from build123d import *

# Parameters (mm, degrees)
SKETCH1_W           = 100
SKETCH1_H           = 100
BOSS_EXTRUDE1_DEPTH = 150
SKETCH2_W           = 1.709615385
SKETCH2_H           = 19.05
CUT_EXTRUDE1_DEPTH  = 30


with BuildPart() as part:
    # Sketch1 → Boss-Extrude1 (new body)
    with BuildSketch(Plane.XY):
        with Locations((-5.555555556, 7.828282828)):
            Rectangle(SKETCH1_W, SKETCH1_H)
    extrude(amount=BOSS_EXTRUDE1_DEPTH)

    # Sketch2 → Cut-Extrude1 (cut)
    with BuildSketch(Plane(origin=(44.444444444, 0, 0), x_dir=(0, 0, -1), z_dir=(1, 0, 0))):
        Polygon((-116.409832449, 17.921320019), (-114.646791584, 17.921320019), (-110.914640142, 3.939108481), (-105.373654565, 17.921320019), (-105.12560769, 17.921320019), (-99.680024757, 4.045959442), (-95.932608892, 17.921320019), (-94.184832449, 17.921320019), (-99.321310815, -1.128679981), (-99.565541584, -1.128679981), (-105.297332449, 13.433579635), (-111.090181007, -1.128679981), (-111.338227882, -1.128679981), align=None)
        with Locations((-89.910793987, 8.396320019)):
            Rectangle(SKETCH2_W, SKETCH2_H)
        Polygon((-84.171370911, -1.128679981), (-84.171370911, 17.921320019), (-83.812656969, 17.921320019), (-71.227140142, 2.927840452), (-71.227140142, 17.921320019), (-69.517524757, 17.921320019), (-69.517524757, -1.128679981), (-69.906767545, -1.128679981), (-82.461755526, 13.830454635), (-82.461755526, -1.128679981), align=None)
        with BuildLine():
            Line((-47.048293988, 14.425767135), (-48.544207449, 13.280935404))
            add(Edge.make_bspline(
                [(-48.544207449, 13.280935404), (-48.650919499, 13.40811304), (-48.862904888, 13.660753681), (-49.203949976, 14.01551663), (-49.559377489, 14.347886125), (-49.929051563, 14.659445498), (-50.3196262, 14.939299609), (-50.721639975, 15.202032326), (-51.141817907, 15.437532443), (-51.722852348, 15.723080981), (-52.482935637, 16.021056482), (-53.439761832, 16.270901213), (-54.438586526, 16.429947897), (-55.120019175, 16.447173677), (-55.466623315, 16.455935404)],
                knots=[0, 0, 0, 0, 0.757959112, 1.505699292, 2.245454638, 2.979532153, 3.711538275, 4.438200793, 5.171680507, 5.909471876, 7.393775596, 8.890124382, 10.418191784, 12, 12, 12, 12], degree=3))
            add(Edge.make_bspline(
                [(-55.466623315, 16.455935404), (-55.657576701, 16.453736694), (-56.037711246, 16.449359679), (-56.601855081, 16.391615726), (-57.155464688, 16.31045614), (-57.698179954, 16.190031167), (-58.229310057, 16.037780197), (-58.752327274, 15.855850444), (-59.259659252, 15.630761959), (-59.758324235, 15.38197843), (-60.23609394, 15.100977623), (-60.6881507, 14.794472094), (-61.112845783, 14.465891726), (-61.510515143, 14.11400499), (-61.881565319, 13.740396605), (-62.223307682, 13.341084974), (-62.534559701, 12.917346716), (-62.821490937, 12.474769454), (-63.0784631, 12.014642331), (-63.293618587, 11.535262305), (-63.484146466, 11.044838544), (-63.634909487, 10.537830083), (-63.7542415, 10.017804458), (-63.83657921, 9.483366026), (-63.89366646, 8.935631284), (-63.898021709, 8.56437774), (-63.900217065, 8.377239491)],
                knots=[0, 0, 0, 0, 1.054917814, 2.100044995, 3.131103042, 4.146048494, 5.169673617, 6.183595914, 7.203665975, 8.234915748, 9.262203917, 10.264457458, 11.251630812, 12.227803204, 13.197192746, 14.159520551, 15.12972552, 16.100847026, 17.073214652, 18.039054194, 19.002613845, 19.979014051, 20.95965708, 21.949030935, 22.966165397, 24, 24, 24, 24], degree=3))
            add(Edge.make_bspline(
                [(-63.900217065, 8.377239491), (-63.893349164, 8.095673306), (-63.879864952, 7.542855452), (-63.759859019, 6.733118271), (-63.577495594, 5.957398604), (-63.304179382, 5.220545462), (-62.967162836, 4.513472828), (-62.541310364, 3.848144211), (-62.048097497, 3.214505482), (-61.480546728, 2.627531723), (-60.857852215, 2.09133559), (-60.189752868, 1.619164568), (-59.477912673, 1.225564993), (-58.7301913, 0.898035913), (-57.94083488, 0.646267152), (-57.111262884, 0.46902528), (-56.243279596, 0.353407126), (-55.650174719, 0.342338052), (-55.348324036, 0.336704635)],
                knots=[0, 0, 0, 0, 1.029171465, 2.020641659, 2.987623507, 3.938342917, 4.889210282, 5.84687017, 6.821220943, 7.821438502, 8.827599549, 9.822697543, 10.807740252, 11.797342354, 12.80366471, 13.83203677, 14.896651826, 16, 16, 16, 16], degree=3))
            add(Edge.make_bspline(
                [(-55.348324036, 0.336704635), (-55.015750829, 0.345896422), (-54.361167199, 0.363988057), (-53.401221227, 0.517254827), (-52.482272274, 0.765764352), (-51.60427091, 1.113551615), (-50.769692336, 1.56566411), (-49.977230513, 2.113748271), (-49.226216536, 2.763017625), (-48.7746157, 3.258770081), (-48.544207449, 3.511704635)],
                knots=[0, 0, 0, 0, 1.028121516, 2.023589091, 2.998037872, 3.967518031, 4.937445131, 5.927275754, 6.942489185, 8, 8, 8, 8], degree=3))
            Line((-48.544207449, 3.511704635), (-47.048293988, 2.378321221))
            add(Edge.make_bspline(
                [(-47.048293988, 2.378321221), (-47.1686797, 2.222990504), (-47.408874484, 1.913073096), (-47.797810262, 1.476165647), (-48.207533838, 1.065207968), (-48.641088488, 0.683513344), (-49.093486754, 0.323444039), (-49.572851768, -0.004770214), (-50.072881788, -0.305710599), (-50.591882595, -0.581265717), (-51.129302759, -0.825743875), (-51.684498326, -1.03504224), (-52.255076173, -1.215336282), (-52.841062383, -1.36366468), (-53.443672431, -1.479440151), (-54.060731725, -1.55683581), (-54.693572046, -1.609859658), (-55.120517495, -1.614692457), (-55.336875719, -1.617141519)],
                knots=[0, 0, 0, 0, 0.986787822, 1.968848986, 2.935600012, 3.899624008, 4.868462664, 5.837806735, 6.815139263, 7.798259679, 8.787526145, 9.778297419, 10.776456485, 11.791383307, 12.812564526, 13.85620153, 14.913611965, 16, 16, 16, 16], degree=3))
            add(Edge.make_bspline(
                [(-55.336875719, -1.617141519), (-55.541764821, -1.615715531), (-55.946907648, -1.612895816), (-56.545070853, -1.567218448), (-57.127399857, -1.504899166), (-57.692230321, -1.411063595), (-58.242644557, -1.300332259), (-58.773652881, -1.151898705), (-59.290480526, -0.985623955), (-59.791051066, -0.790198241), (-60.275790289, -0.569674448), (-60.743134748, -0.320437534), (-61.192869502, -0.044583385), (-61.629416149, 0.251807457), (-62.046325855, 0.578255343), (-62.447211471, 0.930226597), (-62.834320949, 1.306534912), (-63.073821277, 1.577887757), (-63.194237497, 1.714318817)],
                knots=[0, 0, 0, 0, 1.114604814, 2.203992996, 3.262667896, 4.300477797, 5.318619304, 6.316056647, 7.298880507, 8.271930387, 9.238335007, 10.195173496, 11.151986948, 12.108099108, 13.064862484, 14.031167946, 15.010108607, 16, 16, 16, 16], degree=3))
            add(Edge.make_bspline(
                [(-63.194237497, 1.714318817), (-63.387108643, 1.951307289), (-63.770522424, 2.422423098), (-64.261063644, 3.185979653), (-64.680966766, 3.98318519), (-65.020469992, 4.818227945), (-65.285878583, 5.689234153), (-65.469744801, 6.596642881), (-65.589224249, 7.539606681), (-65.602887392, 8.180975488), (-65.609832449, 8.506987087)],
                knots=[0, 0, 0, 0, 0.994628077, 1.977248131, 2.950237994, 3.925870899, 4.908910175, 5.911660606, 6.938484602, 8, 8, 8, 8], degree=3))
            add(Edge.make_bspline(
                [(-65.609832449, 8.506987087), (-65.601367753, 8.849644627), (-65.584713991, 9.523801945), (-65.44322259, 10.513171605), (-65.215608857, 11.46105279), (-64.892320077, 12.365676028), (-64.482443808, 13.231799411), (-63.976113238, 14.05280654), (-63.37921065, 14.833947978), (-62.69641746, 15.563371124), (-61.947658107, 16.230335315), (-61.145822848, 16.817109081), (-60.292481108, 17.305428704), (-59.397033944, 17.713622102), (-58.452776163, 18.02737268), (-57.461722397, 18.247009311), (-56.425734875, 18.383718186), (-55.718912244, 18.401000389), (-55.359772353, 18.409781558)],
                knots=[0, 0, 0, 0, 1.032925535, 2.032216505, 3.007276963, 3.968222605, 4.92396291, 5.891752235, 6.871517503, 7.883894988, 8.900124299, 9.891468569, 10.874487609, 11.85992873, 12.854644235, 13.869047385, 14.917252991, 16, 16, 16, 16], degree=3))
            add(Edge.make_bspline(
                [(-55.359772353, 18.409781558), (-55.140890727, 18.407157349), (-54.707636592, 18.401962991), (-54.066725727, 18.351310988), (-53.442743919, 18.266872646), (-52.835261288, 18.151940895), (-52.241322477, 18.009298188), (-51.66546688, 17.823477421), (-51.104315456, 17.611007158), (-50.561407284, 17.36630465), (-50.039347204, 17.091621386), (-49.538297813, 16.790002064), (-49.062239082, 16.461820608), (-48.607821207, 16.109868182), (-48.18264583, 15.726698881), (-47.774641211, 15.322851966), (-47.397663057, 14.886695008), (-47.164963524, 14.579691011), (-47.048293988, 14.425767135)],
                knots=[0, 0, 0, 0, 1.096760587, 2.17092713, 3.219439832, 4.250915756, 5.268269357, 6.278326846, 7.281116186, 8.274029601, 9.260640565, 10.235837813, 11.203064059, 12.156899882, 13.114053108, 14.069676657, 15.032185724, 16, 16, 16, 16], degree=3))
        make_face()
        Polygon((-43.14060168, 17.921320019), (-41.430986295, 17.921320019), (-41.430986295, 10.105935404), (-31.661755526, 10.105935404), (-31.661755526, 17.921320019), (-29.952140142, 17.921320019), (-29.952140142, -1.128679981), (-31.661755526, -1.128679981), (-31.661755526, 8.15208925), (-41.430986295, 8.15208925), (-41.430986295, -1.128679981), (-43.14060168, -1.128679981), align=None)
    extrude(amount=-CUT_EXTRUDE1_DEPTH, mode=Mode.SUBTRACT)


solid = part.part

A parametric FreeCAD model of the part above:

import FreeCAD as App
import Part
import Sketcher

doc = App.newDocument("Part")
body = doc.addObject("PartDesign::Body", "Body")

# Sketch on XY plane
sketch1 = doc.addObject("Sketcher::SketchObject", "Sketch")
body.addObject(sketch1)
sketch1.AttachmentSupport = (doc.XY_Plane, [""])
sketch1.MapMode = "FlatFace"
sketch1.addGeometry([
    Part.LineSegment(App.Vector(-56, 58, 0), App.Vector(-56, -42, 0)),
    Part.LineSegment(App.Vector(-56, -42, 0), App.Vector(44, -42, 0)),
    Part.LineSegment(App.Vector(44, -42, 0), App.Vector(44, 58, 0)),
    Part.LineSegment(App.Vector(44, 58, 0), App.Vector(-56, 58, 0)),
], False)
sketch1.addConstraint([
    Sketcher.Constraint("Coincident", 0, 2, 1, 1),
    Sketcher.Constraint("Coincident", 1, 2, 2, 1),
    Sketcher.Constraint("Coincident", 2, 2, 3, 1),
    Sketcher.Constraint("Coincident", 3, 2, 0, 1),
    Sketcher.Constraint("Vertical", 0),
    Sketcher.Constraint("Horizontal", 1),
    Sketcher.Constraint("Vertical", 2),
    Sketcher.Constraint("Horizontal", 3),
    Sketcher.Constraint("Equal", 3, 0),
    Sketcher.Constraint("DistanceX", 1, 1, 1, 2, 100.0),
    Sketcher.Constraint("DistanceX", 0, 2, -1, 1, 55.555556),
    Sketcher.Constraint("DistanceY", 0, 2, -1, 1, 42.171717),
])
pad1 = doc.addObject("PartDesign::Pad", "Pad")
body.addObject(pad1)
pad1.Profile = sketch1
pad1.Length = 150

# Sketch on YZ plane
sketch2 = doc.addObject("Sketcher::SketchObject", "Sketch001")
body.addObject(sketch2)
sketch2.AttachmentSupport = (doc.YZ_Plane, [""])
sketch2.MapMode = "FlatFace"
sketch2.AttachmentOffset = App.Placement(App.Vector(0, 0, 44.444444), App.Rotation())
sketch2.addGeometry([
    Part.LineSegment(App.Vector(17.92132, 114.646792, 0), App.Vector(17.92132, 116.409832, 0)),  # 0
    Part.LineSegment(App.Vector(17.92132, 116.409832, 0), App.Vector(-1.12868, 111.338228, 0)),  # 1
    Part.LineSegment(App.Vector(-1.12868, 111.338228, 0), App.Vector(-1.12868, 111.090181, 0)),  # 2
    Part.LineSegment(App.Vector(-1.12868, 111.090181, 0), App.Vector(13.43358, 105.297332, 0)),  # 3
    Part.LineSegment(App.Vector(13.43358, 105.297332, 0), App.Vector(-1.12868, 99.565542, 0)),  # 4
    Part.LineSegment(App.Vector(-1.12868, 99.565542, 0), App.Vector(-1.12868, 99.321311, 0)),  # 5
    Part.LineSegment(App.Vector(-1.12868, 99.321311, 0), App.Vector(17.92132, 94.184832, 0)),  # 6
    Part.LineSegment(App.Vector(17.92132, 94.184832, 0), App.Vector(17.92132, 95.932609, 0)),  # 7
    Part.LineSegment(App.Vector(17.92132, 95.932609, 0), App.Vector(4.045959, 99.680025, 0)),  # 8
    Part.LineSegment(App.Vector(4.045959, 99.680025, 0), App.Vector(17.92132, 105.125608, 0)),  # 9
    Part.LineSegment(App.Vector(17.92132, 105.125608, 0), App.Vector(17.92132, 105.373655, 0)),  # 10
    Part.LineSegment(App.Vector(17.92132, 105.373655, 0), App.Vector(3.939108, 110.91464, 0)),  # 11
    Part.LineSegment(App.Vector(3.939108, 110.91464, 0), App.Vector(17.92132, 114.646792, 0)),  # 12
    Part.LineSegment(App.Vector(17.92132, 90.765602, 0), App.Vector(-1.12868, 90.765602, 0)),  # 13
    Part.LineSegment(App.Vector(-1.12868, 90.765602, 0), App.Vector(-1.12868, 89.055986, 0)),  # 14
    Part.LineSegment(App.Vector(-1.12868, 89.055986, 0), App.Vector(17.92132, 89.055986, 0)),  # 15
    Part.LineSegment(App.Vector(17.92132, 89.055986, 0), App.Vector(17.92132, 90.765602, 0)),  # 16
    Part.LineSegment(App.Vector(17.92132, 84.171371, 0), App.Vector(-1.12868, 84.171371, 0)),  # 17
    Part.LineSegment(App.Vector(-1.12868, 84.171371, 0), App.Vector(-1.12868, 82.461756, 0)),  # 18
    Part.LineSegment(App.Vector(-1.12868, 82.461756, 0), App.Vector(13.830455, 82.461756, 0)),  # 19
    Part.LineSegment(App.Vector(13.830455, 82.461756, 0), App.Vector(-1.12868, 69.906768, 0)),  # 20
    Part.LineSegment(App.Vector(-1.12868, 69.906768, 0), App.Vector(-1.12868, 69.517525, 0)),  # 21
    Part.LineSegment(App.Vector(-1.12868, 69.517525, 0), App.Vector(17.92132, 69.517525, 0)),  # 22
    Part.LineSegment(App.Vector(17.92132, 69.517525, 0), App.Vector(17.92132, 71.22714, 0)),  # 23
    Part.LineSegment(App.Vector(17.92132, 71.22714, 0), App.Vector(2.92784, 71.22714, 0)),  # 24
    Part.LineSegment(App.Vector(2.92784, 71.22714, 0), App.Vector(17.92132, 83.812657, 0)),  # 25
    Part.LineSegment(App.Vector(17.92132, 83.812657, 0), App.Vector(17.92132, 84.171371, 0)),  # 26
    Part.LineSegment(App.Vector(13.280935, 48.544207, 0), App.Vector(14.425767, 47.048294, 0)),  # 27
    Part.BSplineCurve([App.Vector(18.409782, 55.359772, 0), App.Vector(18.407157, 55.140891, 0), App.Vector(18.401963, 54.707637, 0), App.Vector(18.351311, 54.066726, 0), App.Vector(18.266873, 53.442744, 0), App.Vector(18.151941, 52.835261, 0), App.Vector(18.009298, 52.241322, 0), App.Vector(17.823477, 51.665467, 0), App.Vector(17.611007, 51.104315, 0), App.Vector(17.366305, 50.561407, 0), App.Vector(17.091621, 50.039347, 0), App.Vector(16.790002, 49.538298, 0), App.Vector(16.461821, 49.062239, 0), App.Vector(16.109868, 48.607821, 0), App.Vector(15.726699, 48.182646, 0), App.Vector(15.322852, 47.774641, 0), App.Vector(14.886695, 47.397663, 0), App.Vector(14.579691, 47.164964, 0), App.Vector(14.425767, 47.048294, 0)], [4, 1, 1, 1, 1, 1, 1, 1, 1, 1, 1, 1, 1, 1, 1, 1, 4], [0, 1.096760587, 2.17092713, 3.219439832, 4.250915756, 5.268269357, 6.278326846, 7.281116186, 8.274029601, 9.260640565, 10.235837813, 11.203064059, 12.156899882, 13.114053108, 14.069676657, 15.032185724, 16], False, 3, [1, 1, 1, 1, 1, 1, 1, 1, 1, 1, 1, 1, 1, 1, 1, 1, 1, 1, 1], False),  # 28
    Part.BSplineCurve([App.Vector(8.506987, 65.609832, 0), App.Vector(8.849645, 65.601368, 0), App.Vector(9.523802, 65.584714, 0), App.Vector(10.513172, 65.443223, 0), App.Vector(11.461053, 65.215609, 0), App.Vector(12.365676, 64.89232, 0), App.Vector(13.231799, 64.482444, 0), App.Vector(14.052807, 63.976113, 0), App.Vector(14.833948, 63.379211, 0), App.Vector(15.563371, 62.696417, 0), App.Vector(16.230335, 61.947658, 0), App.Vector(16.817109, 61.145823, 0), App.Vector(17.305429, 60.292481, 0), App.Vector(17.713622, 59.397034, 0), App.Vector(18.027373, 58.452776, 0), App.Vector(18.247009, 57.461722, 0), App.Vector(18.383718, 56.425735, 0), App.Vector(18.401, 55.718912, 0), App.Vector(18.409782, 55.359772, 0)], [4, 1, 1, 1, 1, 1, 1, 1, 1, 1, 1, 1, 1, 1, 1, 1, 4], [0, 1.032925535, 2.032216505, 3.007276963, 3.968222605, 4.92396291, 5.891752235, 6.871517503, 7.883894988, 8.900124299, 9.891468569, 10.874487609, 11.85992873, 12.854644235, 13.869047385, 14.917252991, 16], False, 3, [1, 1, 1, 1, 1, 1, 1, 1, 1, 1, 1, 1, 1, 1, 1, 1, 1, 1, 1], False),  # 29
    Part.BSplineCurve([App.Vector(1.714319, 63.194237, 0), App.Vector(1.951307, 63.387109, 0), App.Vector(2.422423, 63.770522, 0), App.Vector(3.18598, 64.261064, 0), App.Vector(3.983185, 64.680967, 0), App.Vector(4.818228, 65.02047, 0), App.Vector(5.689234, 65.285879, 0), App.Vector(6.596643, 65.469745, 0), App.Vector(7.539607, 65.589224, 0), App.Vector(8.180975, 65.602887, 0), App.Vector(8.506987, 65.609832, 0)], [4, 1, 1, 1, 1, 1, 1, 1, 4], [0, 0.994628077, 1.977248131, 2.950237994, 3.925870899, 4.908910175, 5.911660606, 6.938484602, 8], False, 3, [1, 1, 1, 1, 1, 1, 1, 1, 1, 1, 1], False),  # 30
    Part.BSplineCurve([App.Vector(-1.617142, 55.336876, 0), App.Vector(-1.615716, 55.541765, 0), App.Vector(-1.612896, 55.946908, 0), App.Vector(-1.567218, 56.545071, 0), App.Vector(-1.504899, 57.1274, 0), App.Vector(-1.411064, 57.69223, 0), App.Vector(-1.300332, 58.242645, 0), App.Vector(-1.151899, 58.773653, 0), App.Vector(-0.985624, 59.290481, 0), App.Vector(-0.790198, 59.791051, 0), App.Vector(-0.569674, 60.27579, 0), App.Vector(-0.320438, 60.743135, 0), App.Vector(-0.044583, 61.19287, 0), App.Vector(0.251807, 61.629416, 0), App.Vector(0.578255, 62.046326, 0), App.Vector(0.930227, 62.447211, 0), App.Vector(1.306535, 62.834321, 0), App.Vector(1.577888, 63.073821, 0), App.Vector(1.714319, 63.194237, 0)], [4, 1, 1, 1, 1, 1, 1, 1, 1, 1, 1, 1, 1, 1, 1, 1, 4], [0, 1.114604814, 2.203992996, 3.262667896, 4.300477797, 5.318619304, 6.316056647, 7.298880507, 8.271930387, 9.238335007, 10.195173496, 11.151986948, 12.108099108, 13.064862484, 14.031167946, 15.010108607, 16], False, 3, [1, 1, 1, 1, 1, 1, 1, 1, 1, 1, 1, 1, 1, 1, 1, 1, 1, 1, 1], False),  # 31
    Part.BSplineCurve([App.Vector(2.378321, 47.048294, 0), App.Vector(2.222991, 47.16868, 0), App.Vector(1.913073, 47.408874, 0), App.Vector(1.476166, 47.79781, 0), App.Vector(1.065208, 48.207534, 0), App.Vector(0.683513, 48.641088, 0), App.Vector(0.323444, 49.093487, 0), App.Vector(-0.00477, 49.572852, 0), App.Vector(-0.305711, 50.072882, 0), App.Vector(-0.581266, 50.591883, 0), App.Vector(-0.825744, 51.129303, 0), App.Vector(-1.035042, 51.684498, 0), App.Vector(-1.215336, 52.255076, 0), App.Vector(-1.363665, 52.841062, 0), App.Vector(-1.47944, 53.443672, 0), App.Vector(-1.556836, 54.060732, 0), App.Vector(-1.60986, 54.693572, 0), App.Vector(-1.614692, 55.120517, 0), App.Vector(-1.617142, 55.336876, 0)], [4, 1, 1, 1, 1, 1, 1, 1, 1, 1, 1, 1, 1, 1, 1, 1, 4], [0, 0.986787822, 1.968848986, 2.935600012, 3.899624008, 4.868462664, 5.837806735, 6.815139263, 7.798259679, 8.787526145, 9.778297419, 10.776456485, 11.791383307, 12.812564526, 13.85620153, 14.913611965, 16], False, 3, [1, 1, 1, 1, 1, 1, 1, 1, 1, 1, 1, 1, 1, 1, 1, 1, 1, 1, 1], False),  # 32
    Part.LineSegment(App.Vector(2.378321, 47.048294, 0), App.Vector(3.511705, 48.544207, 0)),  # 33
    Part.BSplineCurve([App.Vector(0.336705, 55.348324, 0), App.Vector(0.345896, 55.015751, 0), App.Vector(0.363988, 54.361167, 0), App.Vector(0.517255, 53.401221, 0), App.Vector(0.765764, 52.482272, 0), App.Vector(1.113552, 51.604271, 0), App.Vector(1.565664, 50.769692, 0), App.Vector(2.113748, 49.977231, 0), App.Vector(2.763018, 49.226217, 0), App.Vector(3.25877, 48.774616, 0), App.Vector(3.511705, 48.544207, 0)], [4, 1, 1, 1, 1, 1, 1, 1, 4], [0, 1.028121516, 2.023589091, 2.998037872, 3.967518031, 4.937445131, 5.927275754, 6.942489185, 8], False, 3, [1, 1, 1, 1, 1, 1, 1, 1, 1, 1, 1], False),  # 34
    Part.BSplineCurve([App.Vector(8.377239, 63.900217, 0), App.Vector(8.095673, 63.893349, 0), App.Vector(7.542855, 63.879865, 0), App.Vector(6.733118, 63.759859, 0), App.Vector(5.957399, 63.577496, 0), App.Vector(5.220545, 63.304179, 0), App.Vector(4.513473, 62.967163, 0), App.Vector(3.848144, 62.54131, 0), App.Vector(3.214505, 62.048097, 0), App.Vector(2.627532, 61.480547, 0), App.Vector(2.091336, 60.857852, 0), App.Vector(1.619165, 60.189753, 0), App.Vector(1.225565, 59.477913, 0), App.Vector(0.898036, 58.730191, 0), App.Vector(0.646267, 57.940835, 0), App.Vector(0.469025, 57.111263, 0), App.Vector(0.353407, 56.24328, 0), App.Vector(0.342338, 55.650175, 0), App.Vector(0.336705, 55.348324, 0)], [4, 1, 1, 1, 1, 1, 1, 1, 1, 1, 1, 1, 1, 1, 1, 1, 4], [0, 1.029171465, 2.020641659, 2.987623507, 3.938342917, 4.889210282, 5.84687017, 6.821220943, 7.821438502, 8.827599549, 9.822697543, 10.807740252, 11.797342354, 12.80366471, 13.83203677, 14.896651826, 16], False, 3, [1, 1, 1, 1, 1, 1, 1, 1, 1, 1, 1, 1, 1, 1, 1, 1, 1, 1, 1], False),  # 35
    Part.BSplineCurve([App.Vector(16.455935, 55.466623, 0), App.Vector(16.453737, 55.657577, 0), App.Vector(16.44936, 56.037711, 0), App.Vector(16.391616, 56.601855, 0), App.Vector(16.310456, 57.155465, 0), App.Vector(16.190031, 57.69818, 0), App.Vector(16.03778, 58.22931, 0), App.Vector(15.85585, 58.752327, 0), App.Vector(15.630762, 59.259659, 0), App.Vector(15.381978, 59.758324, 0), App.Vector(15.100978, 60.236094, 0), App.Vector(14.794472, 60.688151, 0), App.Vector(14.465892, 61.112846, 0), App.Vector(14.114005, 61.510515, 0), App.Vector(13.740397, 61.881565, 0), App.Vector(13.341085, 62.223308, 0), App.Vector(12.917347, 62.53456, 0), App.Vector(12.474769, 62.821491, 0), App.Vector(12.014642, 63.078463, 0), App.Vector(11.535262, 63.293619, 0), App.Vector(11.044839, 63.484146, 0), App.Vector(10.53783, 63.634909, 0), App.Vector(10.017804, 63.754241, 0), App.Vector(9.483366, 63.836579, 0), App.Vector(8.935631, 63.893666, 0), App.Vector(8.564378, 63.898022, 0), App.Vector(8.377239, 63.900217, 0)], [4, 1, 1, 1, 1, 1, 1, 1, 1, 1, 1, 1, 1, 1, 1, 1, 1, 1, 1, 1, 1, 1, 1, 1, 4], [0, 1.054917814, 2.100044995, 3.131103042, 4.146048494, 5.169673617, 6.183595914, 7.203665975, 8.234915748, 9.262203917, 10.264457458, 11.251630812, 12.227803204, 13.197192746, 14.159520551, 15.12972552, 16.100847026, 17.073214652, 18.039054194, 19.002613845, 19.979014051, 20.95965708, 21.949030935, 22.966165397, 24], False, 3, [1, 1, 1, 1, 1, 1, 1, 1, 1, 1, 1, 1, 1, 1, 1, 1, 1, 1, 1, 1, 1, 1, 1, 1, 1, 1, 1], False),  # 36
    Part.BSplineCurve([App.Vector(13.280935, 48.544207, 0), App.Vector(13.408113, 48.650919, 0), App.Vector(13.660754, 48.862905, 0), App.Vector(14.015517, 49.20395, 0), App.Vector(14.347886, 49.559377, 0), App.Vector(14.659445, 49.929052, 0), App.Vector(14.9393, 50.319626, 0), App.Vector(15.202032, 50.72164, 0), App.Vector(15.437532, 51.141818, 0), App.Vector(15.723081, 51.722852, 0), App.Vector(16.021056, 52.482936, 0), App.Vector(16.270901, 53.439762, 0), App.Vector(16.429948, 54.438587, 0), App.Vector(16.447174, 55.120019, 0), App.Vector(16.455935, 55.466623, 0)], [4, 1, 1, 1, 1, 1, 1, 1, 1, 1, 1, 1, 4], [0, 0.757959112, 1.505699292, 2.245454638, 2.979532153, 3.711538275, 4.438200793, 5.171680507, 5.909471876, 7.393775596, 8.890124382, 10.418191784, 12], False, 3, [1, 1, 1, 1, 1, 1, 1, 1, 1, 1, 1, 1, 1, 1, 1], False),  # 37
    Part.LineSegment(App.Vector(17.92132, 41.430986, 0), App.Vector(17.92132, 43.140602, 0)),  # 38
    Part.LineSegment(App.Vector(17.92132, 43.140602, 0), App.Vector(-1.12868, 43.140602, 0)),  # 39
    Part.LineSegment(App.Vector(-1.12868, 43.140602, 0), App.Vector(-1.12868, 41.430986, 0)),  # 40
    Part.LineSegment(App.Vector(-1.12868, 41.430986, 0), App.Vector(8.152089, 41.430986, 0)),  # 41
    Part.LineSegment(App.Vector(8.152089, 41.430986, 0), App.Vector(8.152089, 31.661756, 0)),  # 42
    Part.LineSegment(App.Vector(8.152089, 31.661756, 0), App.Vector(-1.12868, 31.661756, 0)),  # 43
    Part.LineSegment(App.Vector(-1.12868, 31.661756, 0), App.Vector(-1.12868, 29.95214, 0)),  # 44
    Part.LineSegment(App.Vector(-1.12868, 29.95214, 0), App.Vector(17.92132, 29.95214, 0)),  # 45
    Part.LineSegment(App.Vector(17.92132, 29.95214, 0), App.Vector(17.92132, 31.661756, 0)),  # 46
    Part.LineSegment(App.Vector(17.92132, 31.661756, 0), App.Vector(10.105935, 31.661756, 0)),  # 47
    Part.LineSegment(App.Vector(10.105935, 31.661756, 0), App.Vector(10.105935, 41.430986, 0)),  # 48
    Part.LineSegment(App.Vector(10.105935, 41.430986, 0), App.Vector(17.92132, 41.430986, 0)),  # 49
], False)
sketch2.addConstraint([
    Sketcher.Constraint("Block", 28),
    Sketcher.Constraint("Block", 29),
    Sketcher.Constraint("Block", 30),
    Sketcher.Constraint("Block", 31),
    Sketcher.Constraint("Block", 32),
    Sketcher.Constraint("Block", 34),
    Sketcher.Constraint("Block", 35),
    Sketcher.Constraint("Block", 36),
    Sketcher.Constraint("Block", 37),
    Sketcher.Constraint("Coincident", 0, 2, 1, 1),
    Sketcher.Constraint("Coincident", 1, 2, 2, 1),
    Sketcher.Constraint("Coincident", 2, 2, 3, 1),
    Sketcher.Constraint("Coincident", 3, 2, 4, 1),
    Sketcher.Constraint("Coincident", 4, 2, 5, 1),
    Sketcher.Constraint("Coincident", 5, 2, 6, 1),
    Sketcher.Constraint("Coincident", 6, 2, 7, 1),
    Sketcher.Constraint("Coincident", 7, 2, 8, 1),
    Sketcher.Constraint("Coincident", 8, 2, 9, 1),
    Sketcher.Constraint("Coincident", 9, 2, 10, 1),
    Sketcher.Constraint("Coincident", 10, 2, 11, 1),
    Sketcher.Constraint("Coincident", 11, 2, 12, 1),
    Sketcher.Constraint("Coincident", 12, 2, 0, 1),
    Sketcher.Constraint("Coincident", 13, 2, 14, 1),
    Sketcher.Constraint("Coincident", 14, 2, 15, 1),
    Sketcher.Constraint("Coincident", 15, 2, 16, 1),
    Sketcher.Constraint("Coincident", 16, 2, 13, 1),
    Sketcher.Constraint("Coincident", 17, 2, 18, 1),
    Sketcher.Constraint("Coincident", 18, 2, 19, 1),
    Sketcher.Constraint("Coincident", 19, 2, 20, 1),
    Sketcher.Constraint("Coincident", 20, 2, 21, 1),
    Sketcher.Constraint("Coincident", 21, 2, 22, 1),
    Sketcher.Constraint("Coincident", 22, 2, 23, 1),
    Sketcher.Constraint("Coincident", 23, 2, 24, 1),
    Sketcher.Constraint("Coincident", 24, 2, 25, 1),
    Sketcher.Constraint("Coincident", 25, 2, 26, 1),
    Sketcher.Constraint("Coincident", 26, 2, 17, 1),
    Sketcher.Constraint("Coincident", 27, 2, 28, 2),
    Sketcher.Constraint("Coincident", 32, 1, 33, 1),
    Sketcher.Constraint("Coincident", 33, 2, 34, 2),
    Sketcher.Constraint("Coincident", 37, 1, 27, 1),
    Sketcher.Constraint("Coincident", 38, 2, 39, 1),
    Sketcher.Constraint("Coincident", 39, 2, 40, 1),
    Sketcher.Constraint("Coincident", 40, 2, 41, 1),
    Sketcher.Constraint("Coincident", 41, 2, 42, 1),
    Sketcher.Constraint("Coincident", 42, 2, 43, 1),
    Sketcher.Constraint("Coincident", 43, 2, 44, 1),
    Sketcher.Constraint("Coincident", 44, 2, 45, 1),
    Sketcher.Constraint("Coincident", 45, 2, 46, 1),
    Sketcher.Constraint("Coincident", 46, 2, 47, 1),
    Sketcher.Constraint("Coincident", 47, 2, 48, 1),
    Sketcher.Constraint("Coincident", 48, 2, 49, 1),
    Sketcher.Constraint("Coincident", 49, 2, 38, 1),
    Sketcher.Constraint("Vertical", 0),
    Sketcher.Constraint("Vertical", 2),
    Sketcher.Constraint("Vertical", 5),
    Sketcher.Constraint("Vertical", 7),
    Sketcher.Constraint("Vertical", 10),
    Sketcher.Constraint("Horizontal", 13),
    Sketcher.Constraint("Vertical", 14),
    Sketcher.Constraint("Horizontal", 15),
    Sketcher.Constraint("Vertical", 16),
    Sketcher.Constraint("Horizontal", 17),
    Sketcher.Constraint("Vertical", 18),
    Sketcher.Constraint("Horizontal", 19),
    Sketcher.Constraint("Vertical", 21),
    Sketcher.Constraint("Horizontal", 22),
    Sketcher.Constraint("Vertical", 23),
    Sketcher.Constraint("Horizontal", 24),
    Sketcher.Constraint("Vertical", 26),
    Sketcher.Constraint("Vertical", 38),
    Sketcher.Constraint("Horizontal", 39),
    Sketcher.Constraint("Vertical", 40),
    Sketcher.Constraint("Horizontal", 41),
    Sketcher.Constraint("Vertical", 42),
    Sketcher.Constraint("Horizontal", 43),
    Sketcher.Constraint("Vertical", 44),
    Sketcher.Constraint("Horizontal", 45),
    Sketcher.Constraint("Vertical", 46),
    Sketcher.Constraint("Horizontal", 47),
    Sketcher.Constraint("Vertical", 48),
    Sketcher.Constraint("Horizontal", 49),
    Sketcher.Constraint("Horizontal", 43, 2, 46, 2),
    Sketcher.Constraint("Horizontal", 41, 2, 48, 2),
    Sketcher.Constraint("Vertical", 2, 2, 4, 2),
    Sketcher.Constraint("Vertical", 0, 2, 6, 2),
    Sketcher.Constraint("Vertical", 7, 2, 9, 2),
    Sketcher.Constraint("Vertical", 5, 2, 13, 2),
    Sketcher.Constraint("Vertical", 12, 2, 15, 2),
    Sketcher.Constraint("Vertical", 14, 2, 17, 2),
    Sketcher.Constraint("Vertical", 18, 2, 20, 2),
    Sketcher.Constraint("Vertical", 16, 2, 22, 2),
    Sketcher.Constraint("Vertical", 23, 2, 25, 2),
    Sketcher.Constraint("Vertical", 26, 2, 38, 2),
    Sketcher.Constraint("Vertical", 21, 2, 39, 2),
    Sketcher.Constraint("Vertical", 40, 2, 43, 2),
    Sketcher.Constraint("Vertical", 38, 2, 45, 2),
    Sketcher.Constraint("Equal", 2, 10),
    Sketcher.Constraint("Equal", 16, 18),
    Sketcher.Constraint("Equal", 18, 23),
    Sketcher.Constraint("Equal", 23, 38),
    Sketcher.Constraint("Equal", 40, 44),
    Sketcher.Constraint("DistanceX", 13, 2, 13, 1, 19.05),
    Sketcher.Constraint("DistanceY", 6, 2, 0, 2, 22.225),
    Sketcher.Constraint("DistanceY", 7, 2, 9, 2, 9.192999),
    Sketcher.Constraint("Distance", 8, 14.3725),
    Sketcher.Constraint("DistanceX", 24, 2, 24, 1, 14.99348),
    Sketcher.Constraint("DistanceX", 41, 1, 41, 2, 9.280769),
    Sketcher.Constraint("DistanceY", 0, 1, 0, 2, 1.763041),
    Sketcher.Constraint("DistanceY", 5, 2, 5, 1, 0.244231),
    Sketcher.Constraint("DistanceY", 42, 2, 42, 1, 9.769231),
    Sketcher.Constraint("DistanceY", -1, 1, 13, 2, 90.765602),
    Sketcher.Constraint("DistanceY", -1, 1, 38, 2, 43.140602),
    Sketcher.Constraint("DistanceY", 3, 2, 0, 2, 11.1125),
    Sketcher.Constraint("DistanceY", 7, 2, 5, 2, 3.388702),
    Sketcher.Constraint("DistanceY", 4, 2, 11, 2, 11.349099),
    Sketcher.Constraint("DistanceY", 19, 2, 25, 2, 1.350901),
    Sketcher.Constraint("Distance", 1, 19.71354),
    Sketcher.Constraint("Distance", 4, 15.649691),
    Sketcher.Constraint("Distance", 6, 19.73033),
    Sketcher.Constraint("DistanceX", 19, 1, 19, 2, 14.959135),
    Sketcher.Constraint("DistanceX", 47, 2, 47, 1, 7.815385),
    Sketcher.Constraint("DistanceY", 2, 2, 2, 1, 0.248047),
    Sketcher.Constraint("DistanceY", 14, 2, 14, 1, 1.709615),
    Sketcher.Constraint("DistanceY", 21, 2, 21, 1, 0.389243),
    Sketcher.Constraint("DistanceX", -1, 1, 0, 2, 17.92132),
    Sketcher.Constraint("DistanceY", -1, 1, 2, 2, 111.090181),
    Sketcher.Constraint("DistanceX", -1, 1, 8, 2, 4.045959),
    Sketcher.Constraint("DistanceX", -1, 1, 11, 2, 3.939108),
    Sketcher.Constraint("DistanceY", -1, 1, 17, 2, 84.171371),
    Sketcher.Constraint("DistanceY", -1, 1, 23, 2, 71.22714),
])
pocket1 = doc.addObject("PartDesign::Pocket", "Pocket")
body.addObject(pocket1)
pocket1.Profile = sketch2
pocket1.Length = 30

doc.recompute()
